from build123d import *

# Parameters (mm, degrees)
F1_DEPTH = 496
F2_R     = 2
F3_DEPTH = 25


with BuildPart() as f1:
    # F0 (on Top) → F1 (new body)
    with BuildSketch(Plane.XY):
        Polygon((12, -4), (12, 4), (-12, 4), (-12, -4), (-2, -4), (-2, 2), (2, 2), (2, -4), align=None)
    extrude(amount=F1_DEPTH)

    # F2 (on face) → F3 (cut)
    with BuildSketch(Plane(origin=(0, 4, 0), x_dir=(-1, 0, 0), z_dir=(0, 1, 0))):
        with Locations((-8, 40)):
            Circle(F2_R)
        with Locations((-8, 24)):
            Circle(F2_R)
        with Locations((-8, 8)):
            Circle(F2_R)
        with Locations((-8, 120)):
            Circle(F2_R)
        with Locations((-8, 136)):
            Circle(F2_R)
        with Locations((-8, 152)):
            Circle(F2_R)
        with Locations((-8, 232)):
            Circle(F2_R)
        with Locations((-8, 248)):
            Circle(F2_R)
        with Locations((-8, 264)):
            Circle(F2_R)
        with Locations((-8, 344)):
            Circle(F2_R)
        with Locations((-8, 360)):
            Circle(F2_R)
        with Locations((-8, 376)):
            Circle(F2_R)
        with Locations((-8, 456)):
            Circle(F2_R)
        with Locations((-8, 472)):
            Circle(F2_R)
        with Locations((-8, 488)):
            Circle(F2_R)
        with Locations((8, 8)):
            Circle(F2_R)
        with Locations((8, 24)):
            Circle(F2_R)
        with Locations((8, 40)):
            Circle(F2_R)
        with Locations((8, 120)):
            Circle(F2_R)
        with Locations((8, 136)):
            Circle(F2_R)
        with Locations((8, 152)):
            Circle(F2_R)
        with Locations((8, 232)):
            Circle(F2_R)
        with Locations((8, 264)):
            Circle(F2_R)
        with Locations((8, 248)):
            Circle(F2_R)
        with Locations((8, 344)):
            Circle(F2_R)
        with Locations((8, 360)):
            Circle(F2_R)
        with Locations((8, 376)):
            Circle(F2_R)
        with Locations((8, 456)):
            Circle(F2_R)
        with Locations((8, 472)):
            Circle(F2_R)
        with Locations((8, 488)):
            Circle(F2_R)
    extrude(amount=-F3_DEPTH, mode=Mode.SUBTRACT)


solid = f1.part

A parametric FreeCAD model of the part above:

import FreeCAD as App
import Part
import Sketcher

V = App.Vector


def add_polygon(sketch, points):
    """Adds a closed chain of lines whose ends are joined by coincident constraints."""
    first, n = sketch.GeometryCount, len(points)
    for a, b in zip(points, points[1:] + points[:1]):
        sketch.addGeometry(Part.LineSegment(App.Vector(*a, 0), App.Vector(*b, 0)), False)
    for i in range(n):
        sketch.addConstraint(Sketcher.Constraint("Coincident", first + i, 2, first + (i + 1) % n, 1))

doc = App.newDocument("Part")
body = doc.addObject("PartDesign::Body", "Body")

sketch1 = body.newObject("Sketcher::SketchObject", "Sketch")
sketch1.AttachmentSupport = (doc.getObject("XY_Plane"), [""])
sketch1.MapMode = "FlatFace"
add_polygon(sketch1, [(12, -4), (12, 4), (-12, 4), (-12, -4), (-2, -4), (-2, 2), (2, 2), (2, -4)])
sketch1.addConstraint([
    Sketcher.Constraint("Vertical", 0),
    Sketcher.Constraint("Horizontal", 1),
    Sketcher.Constraint("Vertical", 2),
    Sketcher.Constraint("Horizontal", 3),
    Sketcher.Constraint("Vertical", 4),
    Sketcher.Constraint("Horizontal", 5),
    Sketcher.Constraint("Vertical", 6),
    Sketcher.Constraint("Horizontal", 7),
    Sketcher.Constraint("Symmetric", 0, 2, 2, 2, -1, 1),
    Sketcher.Constraint("Symmetric", 3, 2, 6, 2, -2),
    Sketcher.Constraint("DistanceX", 1, 2, 1, 1, 24.0),
    Sketcher.Constraint("DistanceX", 3, 1, 3, 2, 10.0),
    Sketcher.Constraint("DistanceY", 0, 1, 0, 2, 8.0),
    Sketcher.Constraint("DistanceY", 4, 1, 4, 2, 6.0),
])
pad1 = body.newObject("PartDesign::Pad", "Pad")
pad1.Profile = sketch1
pad1.Length = 496

sketch2 = body.newObject("Sketcher::SketchObject", "Sketch001")
sketch2.AttachmentSupport = (doc.getObject("XZ_Plane"), [""])
sketch2.MapMode = "FlatFace"
sketch2.AttachmentOffset = App.Placement(V(0, 0, -4), App.Rotation())
sketch2.addGeometry([
    Part.Circle(V(8, 40, 0), V(0, 0, 1), 2),
    Part.Circle(V(8, 24, 0), V(0, 0, 1), 2),
    Part.Circle(V(8, 8, 0), V(0, 0, 1), 2),
    Part.Circle(V(8, 120, 0), V(0, 0, 1), 2),
    Part.Circle(V(8, 136, 0), V(0, 0, 1), 2),
    Part.Circle(V(8, 152, 0), V(0, 0, 1), 2),
    Part.Circle(V(8, 232, 0), V(0, 0, 1), 2),
    Part.Circle(V(8, 248, 0), V(0, 0, 1), 2),
    Part.Circle(V(8, 264, 0), V(0, 0, 1), 2),
    Part.Circle(V(8, 344, 0), V(0, 0, 1), 2),
    Part.Circle(V(8, 360, 0), V(0, 0, 1), 2),
    Part.Circle(V(8, 376, 0), V(0, 0, 1), 2),
    Part.Circle(V(8, 456, 0), V(0, 0, 1), 2),
    Part.Circle(V(8, 472, 0), V(0, 0, 1), 2),
    Part.Circle(V(8, 488, 0), V(0, 0, 1), 2),
    Part.Circle(V(-8, 8, 0), V(0, 0, 1), 2),
    Part.Circle(V(-8, 24, 0), V(0, 0, 1), 2),
    Part.Circle(V(-8, 40, 0), V(0, 0, 1), 2),
    Part.Circle(V(-8, 120, 0), V(0, 0, 1), 2),
    Part.Circle(V(-8, 136, 0), V(0, 0, 1), 2),
    Part.Circle(V(-8, 152, 0), V(0, 0, 1), 2),
    Part.Circle(V(-8, 232, 0), V(0, 0, 1), 2),
    Part.Circle(V(-8, 264, 0), V(0, 0, 1), 2),
    Part.Circle(V(-8, 248, 0), V(0, 0, 1), 2),
    Part.Circle(V(-8, 344, 0), V(0, 0, 1), 2),
    Part.Circle(V(-8, 360, 0), V(0, 0, 1), 2),
    Part.Circle(V(-8, 376, 0), V(0, 0, 1), 2),
    Part.Circle(V(-8, 456, 0), V(0, 0, 1), 2),
    Part.Circle(V(-8, 472, 0), V(0, 0, 1), 2),
    Part.Circle(V(-8, 488, 0), V(0, 0, 1), 2),
], False)
sketch2.addConstraint([
    Sketcher.Constraint("Equal", 0, 1),
    Sketcher.Constraint("Equal", 1, 2),
    Sketcher.Constraint("Equal", 2, 3),
    Sketcher.Constraint("Equal", 3, 4),
    Sketcher.Constraint("Equal", 4, 5),
    Sketcher.Constraint("Equal", 5, 6),
    Sketcher.Constraint("Equal", 6, 7),
    Sketcher.Constraint("Equal", 7, 8),
    Sketcher.Constraint("Equal", 8, 9),
    Sketcher.Constraint("Equal", 9, 10),
    Sketcher.Constraint("Equal", 10, 11),
    Sketcher.Constraint("Equal", 11, 12),
    Sketcher.Constraint("Equal", 12, 13),
    Sketcher.Constraint("Equal", 13, 14),
    Sketcher.Constraint("Equal", 14, 15),
    Sketcher.Constraint("Equal", 15, 16),
    Sketcher.Constraint("Equal", 16, 17),
    Sketcher.Constraint("Equal", 17, 18),
    Sketcher.Constraint("Equal", 18, 19),
    Sketcher.Constraint("Equal", 19, 20),
    Sketcher.Constraint("Equal", 20, 21),
    Sketcher.Constraint("Equal", 21, 22),
    Sketcher.Constraint("Equal", 22, 23),
    Sketcher.Constraint("Equal", 23, 24),
    Sketcher.Constraint("Equal", 24, 25),
    Sketcher.Constraint("Equal", 25, 26),
    Sketcher.Constraint("Equal", 26, 27),
    Sketcher.Constraint("Equal", 27, 28),
    Sketcher.Constraint("Equal", 28, 29),
    Sketcher.Constraint("Symmetric", 2, 3, 15, 3, -2),
    Sketcher.Constraint("Symmetric", 1, 3, 16, 3, -2),
    Sketcher.Constraint("Symmetric", 0, 3, 17, 3, -2),
    Sketcher.Constraint("Symmetric", 3, 3, 18, 3, -2),
    Sketcher.Constraint("Symmetric", 4, 3, 19, 3, -2),
    Sketcher.Constraint("Symmetric", 5, 3, 20, 3, -2),
    Sketcher.Constraint("Symmetric", 6, 3, 21, 3, -2),
    Sketcher.Constraint("Symmetric", 8, 3, 22, 3, -2),
    Sketcher.Constraint("Symmetric", 7, 3, 23, 3, -2),
    Sketcher.Constraint("Symmetric", 9, 3, 24, 3, -2),
    Sketcher.Constraint("Symmetric", 10, 3, 25, 3, -2),
    Sketcher.Constraint("Symmetric", 11, 3, 26, 3, -2),
    Sketcher.Constraint("Symmetric", 12, 3, 27, 3, -2),
    Sketcher.Constraint("Symmetric", 13, 3, 28, 3, -2),
    Sketcher.Constraint("Symmetric", 14, 3, 29, 3, -2),
    Sketcher.Constraint("Vertical", 0, 3, 1, 3),
    Sketcher.Constraint("Vertical", 1, 3, 2, 3),
    Sketcher.Constraint("Vertical", 2, 3, 3, 3),
    Sketcher.Constraint("Vertical", 3, 3, 4, 3),
    Sketcher.Constraint("Vertical", 4, 3, 5, 3),
    Sketcher.Constraint("Vertical", 5, 3, 6, 3),
    Sketcher.Constraint("Vertical", 6, 3, 7, 3),
    Sketcher.Constraint("Vertical", 7, 3, 8, 3),
    Sketcher.Constraint("Vertical", 8, 3, 9, 3),
    Sketcher.Constraint("Vertical", 9, 3, 10, 3),
    Sketcher.Constraint("Vertical", 10, 3, 11, 3),
    Sketcher.Constraint("Vertical", 11, 3, 12, 3),
    Sketcher.Constraint("Vertical", 12, 3, 13, 3),
    Sketcher.Constraint("Vertical", 13, 3, 14, 3),
    Sketcher.Constraint("Diameter", 0, 4.0),
    Sketcher.Constraint("DistanceX", -1, 1, 0, 3, 8.0),
    Sketcher.Constraint("DistanceY", -1, 1, 0, 3, 40.0),
    Sketcher.Constraint("DistanceY", -1, 1, 1, 3, 24.0),
    Sketcher.Constraint("DistanceY", -1, 1, 2, 3, 8.0),
    Sketcher.Constraint("DistanceY", -1, 1, 3, 3, 120.0),
    Sketcher.Constraint("DistanceY", -1, 1, 4, 3, 136.0),
    Sketcher.Constraint("DistanceY", -1, 1, 5, 3, 152.0),
    Sketcher.Constraint("DistanceY", -1, 1, 6, 3, 232.0),
    Sketcher.Constraint("DistanceY", -1, 1, 7, 3, 248.0),
    Sketcher.Constraint("DistanceY", -1, 1, 8, 3, 264.0),
    Sketcher.Constraint("DistanceY", -1, 1, 9, 3, 344.0),
    Sketcher.Constraint("DistanceY", -1, 1, 10, 3, 360.0),
    Sketcher.Constraint("DistanceY", -1, 1, 11, 3, 376.0),
    Sketcher.Constraint("DistanceY", -1, 1, 12, 3, 456.0),
    Sketcher.Constraint("DistanceY", -1, 1, 13, 3, 472.0),
    Sketcher.Constraint("DistanceY", -1, 1, 14, 3, 488.0),
])
pocket1 = body.newObject("PartDesign::Pocket", "Pocket")
pocket1.Profile = sketch2
pocket1.Length = 25
pocket1.Reversed = True

doc.recompute()
